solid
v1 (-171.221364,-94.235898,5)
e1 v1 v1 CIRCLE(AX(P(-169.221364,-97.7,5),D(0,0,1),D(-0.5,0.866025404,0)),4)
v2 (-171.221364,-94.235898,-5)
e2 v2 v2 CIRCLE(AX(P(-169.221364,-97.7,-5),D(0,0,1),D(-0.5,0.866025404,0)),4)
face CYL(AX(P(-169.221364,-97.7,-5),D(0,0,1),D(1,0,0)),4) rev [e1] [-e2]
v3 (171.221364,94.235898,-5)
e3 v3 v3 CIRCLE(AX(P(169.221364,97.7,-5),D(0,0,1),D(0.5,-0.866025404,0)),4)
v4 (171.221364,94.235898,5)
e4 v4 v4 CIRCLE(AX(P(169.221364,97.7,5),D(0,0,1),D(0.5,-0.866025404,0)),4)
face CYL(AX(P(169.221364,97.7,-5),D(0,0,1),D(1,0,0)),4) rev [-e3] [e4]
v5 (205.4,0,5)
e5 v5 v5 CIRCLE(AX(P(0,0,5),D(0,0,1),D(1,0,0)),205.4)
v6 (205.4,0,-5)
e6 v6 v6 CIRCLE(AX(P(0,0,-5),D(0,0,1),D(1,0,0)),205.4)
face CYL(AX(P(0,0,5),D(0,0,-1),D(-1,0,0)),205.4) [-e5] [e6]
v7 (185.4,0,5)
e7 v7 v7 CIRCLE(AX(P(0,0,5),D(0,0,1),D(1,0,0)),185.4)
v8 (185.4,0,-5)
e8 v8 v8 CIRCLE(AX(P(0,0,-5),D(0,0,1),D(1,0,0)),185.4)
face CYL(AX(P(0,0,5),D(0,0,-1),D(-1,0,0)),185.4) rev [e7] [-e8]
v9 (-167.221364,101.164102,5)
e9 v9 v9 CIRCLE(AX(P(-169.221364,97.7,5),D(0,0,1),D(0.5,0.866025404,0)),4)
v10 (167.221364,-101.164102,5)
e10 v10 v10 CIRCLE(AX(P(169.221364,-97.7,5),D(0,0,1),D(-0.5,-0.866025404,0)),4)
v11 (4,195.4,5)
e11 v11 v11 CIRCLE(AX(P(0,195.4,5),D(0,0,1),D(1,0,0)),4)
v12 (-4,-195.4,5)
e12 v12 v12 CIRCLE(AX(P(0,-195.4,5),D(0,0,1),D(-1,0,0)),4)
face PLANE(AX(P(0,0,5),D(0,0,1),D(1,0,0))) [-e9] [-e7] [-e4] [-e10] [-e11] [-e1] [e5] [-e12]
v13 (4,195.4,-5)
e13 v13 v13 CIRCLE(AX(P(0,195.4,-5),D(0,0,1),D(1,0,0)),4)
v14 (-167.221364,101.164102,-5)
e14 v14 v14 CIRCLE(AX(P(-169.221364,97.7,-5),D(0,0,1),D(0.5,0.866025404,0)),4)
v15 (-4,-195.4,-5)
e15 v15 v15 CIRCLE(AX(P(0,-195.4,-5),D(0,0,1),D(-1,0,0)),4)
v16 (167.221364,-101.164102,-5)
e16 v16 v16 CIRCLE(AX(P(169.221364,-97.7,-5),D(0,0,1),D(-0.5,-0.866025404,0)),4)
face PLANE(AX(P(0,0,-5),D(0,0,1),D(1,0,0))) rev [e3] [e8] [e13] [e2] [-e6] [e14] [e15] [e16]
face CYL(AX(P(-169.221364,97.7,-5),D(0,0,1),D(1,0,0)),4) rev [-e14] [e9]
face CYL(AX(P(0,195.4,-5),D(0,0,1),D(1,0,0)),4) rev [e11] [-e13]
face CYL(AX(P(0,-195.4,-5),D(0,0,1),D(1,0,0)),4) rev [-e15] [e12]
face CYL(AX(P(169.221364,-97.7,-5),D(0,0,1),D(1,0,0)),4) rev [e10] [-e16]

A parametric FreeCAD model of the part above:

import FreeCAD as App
import Part
import Sketcher
from FreeCAD import Vector
Q = App.Units.Quantity

doc = App.newDocument("Part")
body = doc.addObject("PartDesign::Body", "Body")

sketch1 = body.newObject("Sketcher::SketchObject", "Sketch")
sketch1.AttachmentSupport = (doc.getObject("XY_Plane"), [""])
sketch1.MapMode = "FlatFace"
sketch1.addGeometry([
    Part.Circle(Vector(0, 0, 0), Vector(0, 0, 1), 205),
    Part.Circle(Vector(0, 0, 0), Vector(0, 0, 1), 185),
], False)
sketch1.addConstraint([
    Sketcher.Constraint("Coincident", 0, 3, -1, 1),
    Sketcher.Constraint("Coincident", 1, 3, -1, 1),
    Sketcher.Constraint("Diameter", 0, Q("410.8 mm")),
    Sketcher.Constraint("Diameter", 1, Q("370.8 mm")),
])
pad1 = body.newObject("PartDesign::Pad", "Pad")
pad1.Profile = sketch1
pad1.Length = 10
pad1.Midplane = True

sketch2 = body.newObject("Sketcher::SketchObject", "Sketch001")
sketch2.AttachmentSupport = (doc.getObject("XY_Plane"), [""])
sketch2.MapMode = "FlatFace"
sketch2.AttachmentOffset = App.Placement(Vector(0, 0, 5), App.Rotation())
sketch2.addGeometry(Part.Circle(Vector(0, 195.4, 0), Vector(0, 0, 1), 4), False)
sketch2.addConstraint([
    Sketcher.Constraint("PointOnObject", 0, 3, -2),
    Sketcher.Constraint("Diameter", 0, Q("8 mm")),
    Sketcher.Constraint("DistanceY", -1, 1, 0, 3, Q("195.4 mm")),
])
pocket1 = body.newObject("PartDesign::Pocket", "Pocket")
pocket1.Profile = sketch2
pocket1.Type = "ThroughAll"
doc.recompute()

polarpattern = body.newObject("PartDesign::PolarPattern", "PolarPattern")
polarpattern.Originals = [pocket1]
polarpattern.Axis = (doc.getObject("Z_Axis"), [""])
polarpattern.Angle = 360
polarpattern.Occurrences = 6
body.Tip = polarpattern

doc.recompute()
